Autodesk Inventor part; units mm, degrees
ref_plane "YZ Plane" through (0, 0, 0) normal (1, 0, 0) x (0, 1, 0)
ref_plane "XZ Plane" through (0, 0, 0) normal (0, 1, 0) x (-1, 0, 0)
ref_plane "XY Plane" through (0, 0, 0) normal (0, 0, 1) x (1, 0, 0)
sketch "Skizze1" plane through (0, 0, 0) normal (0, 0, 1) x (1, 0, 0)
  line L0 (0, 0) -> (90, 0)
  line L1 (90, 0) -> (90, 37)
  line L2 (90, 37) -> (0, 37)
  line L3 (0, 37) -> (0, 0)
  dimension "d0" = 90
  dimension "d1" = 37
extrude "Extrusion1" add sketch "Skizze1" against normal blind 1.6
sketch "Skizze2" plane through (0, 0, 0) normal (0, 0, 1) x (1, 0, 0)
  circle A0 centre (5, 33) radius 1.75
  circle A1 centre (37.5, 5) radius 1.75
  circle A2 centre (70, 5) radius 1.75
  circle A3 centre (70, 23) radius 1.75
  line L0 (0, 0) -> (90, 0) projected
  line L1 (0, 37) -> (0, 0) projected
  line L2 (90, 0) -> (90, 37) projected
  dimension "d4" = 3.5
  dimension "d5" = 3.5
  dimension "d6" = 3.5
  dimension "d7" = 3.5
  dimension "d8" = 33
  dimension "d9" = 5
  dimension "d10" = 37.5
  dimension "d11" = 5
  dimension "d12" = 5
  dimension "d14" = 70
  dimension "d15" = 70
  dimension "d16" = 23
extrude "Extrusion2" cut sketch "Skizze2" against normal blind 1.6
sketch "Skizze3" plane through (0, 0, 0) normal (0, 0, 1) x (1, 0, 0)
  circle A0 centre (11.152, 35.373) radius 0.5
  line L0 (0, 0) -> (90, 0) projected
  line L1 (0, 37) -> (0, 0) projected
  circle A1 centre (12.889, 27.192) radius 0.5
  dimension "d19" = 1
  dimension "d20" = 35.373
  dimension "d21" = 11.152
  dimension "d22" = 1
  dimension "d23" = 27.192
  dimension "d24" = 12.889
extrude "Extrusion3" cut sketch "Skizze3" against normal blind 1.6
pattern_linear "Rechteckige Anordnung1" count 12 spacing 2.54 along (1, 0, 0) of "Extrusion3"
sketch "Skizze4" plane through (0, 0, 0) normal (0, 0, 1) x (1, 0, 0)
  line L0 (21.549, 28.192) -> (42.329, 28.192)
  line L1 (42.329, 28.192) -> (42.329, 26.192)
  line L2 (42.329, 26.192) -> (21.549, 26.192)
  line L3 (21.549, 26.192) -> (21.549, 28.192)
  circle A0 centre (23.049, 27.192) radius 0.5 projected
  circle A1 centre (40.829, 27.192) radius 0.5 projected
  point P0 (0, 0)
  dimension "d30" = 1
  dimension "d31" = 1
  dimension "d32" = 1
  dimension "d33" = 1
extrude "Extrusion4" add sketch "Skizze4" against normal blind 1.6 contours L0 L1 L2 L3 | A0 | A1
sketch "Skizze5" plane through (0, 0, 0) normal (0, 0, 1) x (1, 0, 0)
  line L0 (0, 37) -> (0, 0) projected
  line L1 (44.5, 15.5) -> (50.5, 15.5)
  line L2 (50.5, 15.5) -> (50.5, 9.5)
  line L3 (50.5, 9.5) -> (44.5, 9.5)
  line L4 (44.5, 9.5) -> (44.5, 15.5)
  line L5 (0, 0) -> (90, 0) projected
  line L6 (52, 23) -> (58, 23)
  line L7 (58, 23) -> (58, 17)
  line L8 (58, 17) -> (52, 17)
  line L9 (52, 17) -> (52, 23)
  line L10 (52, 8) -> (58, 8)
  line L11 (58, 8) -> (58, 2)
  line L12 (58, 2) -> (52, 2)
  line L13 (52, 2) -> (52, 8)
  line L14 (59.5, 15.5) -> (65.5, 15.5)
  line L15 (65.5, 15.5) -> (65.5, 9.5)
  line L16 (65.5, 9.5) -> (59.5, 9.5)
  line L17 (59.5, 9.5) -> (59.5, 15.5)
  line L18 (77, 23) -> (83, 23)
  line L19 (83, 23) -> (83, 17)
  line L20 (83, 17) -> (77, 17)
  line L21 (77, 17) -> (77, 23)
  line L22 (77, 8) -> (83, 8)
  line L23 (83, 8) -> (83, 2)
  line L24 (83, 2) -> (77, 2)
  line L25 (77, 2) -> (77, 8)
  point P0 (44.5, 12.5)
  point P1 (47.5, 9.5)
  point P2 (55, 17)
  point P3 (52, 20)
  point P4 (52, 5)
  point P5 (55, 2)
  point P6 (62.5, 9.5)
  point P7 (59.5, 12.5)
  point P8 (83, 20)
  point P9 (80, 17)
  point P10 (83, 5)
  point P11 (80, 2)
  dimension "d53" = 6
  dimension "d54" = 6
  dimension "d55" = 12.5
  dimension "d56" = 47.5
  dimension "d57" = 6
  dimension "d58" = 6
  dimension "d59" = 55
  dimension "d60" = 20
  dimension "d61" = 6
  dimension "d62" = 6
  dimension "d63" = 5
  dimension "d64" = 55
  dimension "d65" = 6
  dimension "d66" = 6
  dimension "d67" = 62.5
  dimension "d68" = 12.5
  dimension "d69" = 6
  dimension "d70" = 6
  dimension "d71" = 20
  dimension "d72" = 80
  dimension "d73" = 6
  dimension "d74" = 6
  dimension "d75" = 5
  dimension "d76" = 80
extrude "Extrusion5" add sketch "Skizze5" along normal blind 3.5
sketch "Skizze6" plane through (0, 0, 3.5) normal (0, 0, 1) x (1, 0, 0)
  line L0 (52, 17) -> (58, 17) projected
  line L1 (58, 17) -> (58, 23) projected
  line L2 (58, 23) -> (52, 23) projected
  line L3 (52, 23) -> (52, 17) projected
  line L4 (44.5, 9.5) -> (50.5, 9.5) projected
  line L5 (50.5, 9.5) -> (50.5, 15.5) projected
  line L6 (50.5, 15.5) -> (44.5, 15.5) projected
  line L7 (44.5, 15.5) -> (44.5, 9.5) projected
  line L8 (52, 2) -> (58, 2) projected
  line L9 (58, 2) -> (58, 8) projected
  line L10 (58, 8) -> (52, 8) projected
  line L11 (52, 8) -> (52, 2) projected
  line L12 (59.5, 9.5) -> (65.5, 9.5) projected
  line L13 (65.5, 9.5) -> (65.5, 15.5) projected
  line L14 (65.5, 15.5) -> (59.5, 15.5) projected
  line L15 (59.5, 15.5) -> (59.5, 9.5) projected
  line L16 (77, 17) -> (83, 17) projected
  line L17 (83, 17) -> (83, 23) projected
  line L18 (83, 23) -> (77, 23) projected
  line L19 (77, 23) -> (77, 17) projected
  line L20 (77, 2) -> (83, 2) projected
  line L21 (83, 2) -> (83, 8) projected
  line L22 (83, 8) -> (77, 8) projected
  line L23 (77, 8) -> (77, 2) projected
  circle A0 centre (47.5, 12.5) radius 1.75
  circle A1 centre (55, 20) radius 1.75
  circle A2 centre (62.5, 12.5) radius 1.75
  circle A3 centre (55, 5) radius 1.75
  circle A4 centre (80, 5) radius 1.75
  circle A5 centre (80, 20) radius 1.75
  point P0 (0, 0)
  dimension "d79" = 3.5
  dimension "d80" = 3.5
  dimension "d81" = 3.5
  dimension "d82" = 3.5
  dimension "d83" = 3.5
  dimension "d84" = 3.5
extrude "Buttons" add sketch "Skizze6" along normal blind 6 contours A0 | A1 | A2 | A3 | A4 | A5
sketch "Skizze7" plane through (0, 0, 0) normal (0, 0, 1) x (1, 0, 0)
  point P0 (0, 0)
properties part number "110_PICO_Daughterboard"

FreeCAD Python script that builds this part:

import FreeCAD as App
import Part
import Sketcher
from FreeCAD import Vector
Q = App.Units.Quantity

doc = App.newDocument("Part")
body = doc.addObject("PartDesign::Body", "Body")

sketch1 = doc.addObject("Sketcher::SketchObject", "Sketch")
body.addObject(sketch1)
sketch1.AttachmentSupport = (doc.XY_Plane, [""])
sketch1.MapMode = "FlatFace"
sketch1.addGeometry(Part.LineSegment(Vector(0, 37, 0), Vector(0, 0, 0)), False)
sketch1.addGeometry(Part.LineSegment(Vector(0, 0, 0), Vector(90, 0, 0)), False)
sketch1.addGeometry(Part.LineSegment(Vector(90, 0, 0), Vector(90, 37, 0)), False)
sketch1.addGeometry(Part.LineSegment(Vector(90, 37, 0), Vector(0, 37, 0)), False)
sketch1.addConstraint(Sketcher.Constraint("Coincident", 0, 2, 1, 1))
sketch1.addConstraint(Sketcher.Constraint("Coincident", 1, 2, 2, 1))
sketch1.addConstraint(Sketcher.Constraint("Coincident", 2, 2, 3, 1))
sketch1.addConstraint(Sketcher.Constraint("Coincident", 3, 2, 0, 1))
sketch1.addConstraint(Sketcher.Constraint("Vertical", 0))
sketch1.addConstraint(Sketcher.Constraint("Horizontal", 1))
sketch1.addConstraint(Sketcher.Constraint("Vertical", 2))
sketch1.addConstraint(Sketcher.Constraint("Horizontal", 3))
sketch1.addConstraint(Sketcher.Constraint("Coincident", 0, 2, -1, 1))
sketch1.addConstraint(Sketcher.Constraint("DistanceX", 1, 1, 1, 2, Q("90 mm")))
sketch1.addConstraint(Sketcher.Constraint("DistanceY", 0, 2, 0, 1, Q("37 mm")))
pad1 = doc.addObject("PartDesign::Pad", "Pad")
body.addObject(pad1)
pad1.Profile = sketch1
pad1.Length = 1.6
pad1.Reversed = True

sketch2 = doc.addObject("Sketcher::SketchObject", "Sketch001")
body.addObject(sketch2)
sketch2.AttachmentSupport = (doc.XY_Plane, [""])
sketch2.MapMode = "FlatFace"
sketch2.addGeometry(Part.Circle(Vector(5, 33, 0), Vector(0, 0, 1), 1.75), False)
sketch2.addGeometry(Part.Circle(Vector(37.5, 5, 0), Vector(0, 0, 1), 1.75), False)
sketch2.addGeometry(Part.Circle(Vector(70, 5, 0), Vector(0, 0, 1), 1.75), False)
sketch2.addGeometry(Part.Circle(Vector(70, 23, 0), Vector(0, 0, 1), 1.75), False)
sketch2.addConstraint(Sketcher.Constraint("Equal", 0, 1))
sketch2.addConstraint(Sketcher.Constraint("Equal", 1, 2))
sketch2.addConstraint(Sketcher.Constraint("Equal", 2, 3))
sketch2.addConstraint(Sketcher.Constraint("Horizontal", 1, 3, 2, 3))
sketch2.addConstraint(Sketcher.Constraint("Vertical", 2, 3, 3, 3))
sketch2.addConstraint(Sketcher.Constraint("Diameter", 0, Q("3.5 mm")))
sketch2.addConstraint(Sketcher.Constraint("DistanceX", -1, 1, 0, 3, Q("5 mm")))
sketch2.addConstraint(Sketcher.Constraint("DistanceY", -1, 1, 0, 3, Q("33 mm")))
sketch2.addConstraint(Sketcher.Constraint("DistanceY", -1, 1, 1, 3, Q("5 mm")))
sketch2.addConstraint(Sketcher.Constraint("DistanceX", -1, 1, 2, 3, Q("70 mm")))
sketch2.addConstraint(Sketcher.Constraint("DistanceY", -1, 1, 3, 3, Q("23 mm")))
sketch2.addConstraint(Sketcher.Constraint("DistanceX", -1, 1, 1, 3, Q("37.5 mm")))
pocket1 = doc.addObject("PartDesign::Pocket", "Pocket")
body.addObject(pocket1)
pocket1.Profile = sketch2
pocket1.Length = 1.6

sketch3 = doc.addObject("Sketcher::SketchObject", "Sketch002")
body.addObject(sketch3)
sketch3.AttachmentSupport = (doc.XY_Plane, [""])
sketch3.MapMode = "FlatFace"
sketch3.addGeometry(Part.Circle(Vector(11.152, 35.373, 0), Vector(0, 0, 1), 0.5), False)
sketch3.addGeometry(Part.Circle(Vector(12.889, 27.192, 0), Vector(0, 0, 1), 0.5), False)
sketch3.addConstraint(Sketcher.Constraint("Equal", 0, 1))
sketch3.addConstraint(Sketcher.Constraint("Diameter", 0, Q("1 mm")))
sketch3.addConstraint(Sketcher.Constraint("DistanceX", -1, 1, 0, 3, Q("11.152 mm")))
sketch3.addConstraint(Sketcher.Constraint("DistanceY", -1, 1, 0, 3, Q("35.373 mm")))
sketch3.addConstraint(Sketcher.Constraint("DistanceX", -1, 1, 1, 3, Q("12.889 mm")))
sketch3.addConstraint(Sketcher.Constraint("DistanceY", -1, 1, 1, 3, Q("27.192 mm")))
pocket2 = doc.addObject("PartDesign::Pocket", "Pocket001")
body.addObject(pocket2)
pocket2.Profile = sketch3
pocket2.Length = 1.6
doc.recompute()

linearpattern = doc.addObject("PartDesign::LinearPattern", "LinearPattern")
body.addObject(linearpattern)
linearpattern.Originals = [pocket2]
linearpattern.Direction = (doc.X_Axis, [""])
linearpattern.Mode = "offset"
linearpattern.Offset = 2.54
linearpattern.Occurrences = 12
body.Tip = linearpattern

sketch4 = doc.addObject("Sketcher::SketchObject", "Sketch003")
body.addObject(sketch4)
sketch4.AttachmentSupport = (doc.XY_Plane, [""])
sketch4.MapMode = "FlatFace"
sketch4.addGeometry(Part.LineSegment(Vector(42.329, 28.192, 0), Vector(21.549, 28.192, 0)), False)
sketch4.addGeometry(Part.LineSegment(Vector(21.549, 28.192, 0), Vector(21.549, 26.192, 0)), False)
sketch4.addGeometry(Part.LineSegment(Vector(21.549, 26.192, 0), Vector(42.329, 26.192, 0)), False)
sketch4.addGeometry(Part.LineSegment(Vector(42.329, 26.192, 0), Vector(42.329, 28.192, 0)), False)
sketch4.addConstraint(Sketcher.Constraint("Coincident", 0, 2, 1, 1))
sketch4.addConstraint(Sketcher.Constraint("Coincident", 1, 2, 2, 1))
sketch4.addConstraint(Sketcher.Constraint("Coincident", 2, 2, 3, 1))
sketch4.addConstraint(Sketcher.Constraint("Coincident", 3, 2, 0, 1))
sketch4.addConstraint(Sketcher.Constraint("Horizontal", 0))
sketch4.addConstraint(Sketcher.Constraint("Vertical", 1))
sketch4.addConstraint(Sketcher.Constraint("Horizontal", 2))
sketch4.addConstraint(Sketcher.Constraint("Vertical", 3))
sketch4.addConstraint(Sketcher.Constraint("DistanceY", 1, 2, 1, 1, Q("2 mm")))
sketch4.addConstraint(Sketcher.Constraint("DistanceX", 0, 2, 0, 1, Q("20.78 mm")))
sketch4.addConstraint(Sketcher.Constraint("DistanceX", -1, 1, 0, 2, Q("21.549 mm")))
sketch4.addConstraint(Sketcher.Constraint("DistanceY", -1, 1, 0, 2, Q("28.192 mm")))
pad2 = doc.addObject("PartDesign::Pad", "Pad001")
body.addObject(pad2)
pad2.Profile = sketch4
pad2.Length = 1.6
pad2.Reversed = True

sketch5 = doc.addObject("Sketcher::SketchObject", "Sketch004")
body.addObject(sketch5)
sketch5.AttachmentSupport = (doc.XY_Plane, [""])
sketch5.MapMode = "FlatFace"
sketch5.addGeometry(Part.LineSegment(Vector(50.5, 15.5, 0), Vector(44.5, 15.5, 0)), False)
sketch5.addGeometry(Part.LineSegment(Vector(44.5, 15.5, 0), Vector(44.5, 9.5, 0)), False)
sketch5.addGeometry(Part.LineSegment(Vector(44.5, 9.5, 0), Vector(50.5, 9.5, 0)), False)
sketch5.addGeometry(Part.LineSegment(Vector(50.5, 9.5, 0), Vector(50.5, 15.5, 0)), False)
sketch5.addGeometry(Part.LineSegment(Vector(58, 23, 0), Vector(52, 23, 0)), False)
sketch5.addGeometry(Part.LineSegment(Vector(52, 23, 0), Vector(52, 17, 0)), False)
sketch5.addGeometry(Part.LineSegment(Vector(52, 17, 0), Vector(58, 17, 0)), False)
sketch5.addGeometry(Part.LineSegment(Vector(58, 17, 0), Vector(58, 23, 0)), False)
sketch5.addGeometry(Part.LineSegment(Vector(58, 8, 0), Vector(52, 8, 0)), False)
sketch5.addGeometry(Part.LineSegment(Vector(52, 8, 0), Vector(52, 2, 0)), False)
sketch5.addGeometry(Part.LineSegment(Vector(52, 2, 0), Vector(58, 2, 0)), False)
sketch5.addGeometry(Part.LineSegment(Vector(58, 2, 0), Vector(58, 8, 0)), False)
sketch5.addGeometry(Part.LineSegment(Vector(65.5, 15.5, 0), Vector(59.5, 15.5, 0)), False)
sketch5.addGeometry(Part.LineSegment(Vector(59.5, 15.5, 0), Vector(59.5, 9.5, 0)), False)
sketch5.addGeometry(Part.LineSegment(Vector(59.5, 9.5, 0), Vector(65.5, 9.5, 0)), False)
sketch5.addGeometry(Part.LineSegment(Vector(65.5, 9.5, 0), Vector(65.5, 15.5, 0)), False)
sketch5.addGeometry(Part.LineSegment(Vector(83, 23, 0), Vector(77, 23, 0)), False)
sketch5.addGeometry(Part.LineSegment(Vector(77, 23, 0), Vector(77, 17, 0)), False)
sketch5.addGeometry(Part.LineSegment(Vector(77, 17, 0), Vector(83, 17, 0)), False)
sketch5.addGeometry(Part.LineSegment(Vector(83, 17, 0), Vector(83, 23, 0)), False)
sketch5.addGeometry(Part.LineSegment(Vector(83, 8, 0), Vector(77, 8, 0)), False)
sketch5.addGeometry(Part.LineSegment(Vector(77, 8, 0), Vector(77, 2, 0)), False)
sketch5.addGeometry(Part.LineSegment(Vector(77, 2, 0), Vector(83, 2, 0)), False)
sketch5.addGeometry(Part.LineSegment(Vector(83, 2, 0), Vector(83, 8, 0)), False)
sketch5.addConstraint(Sketcher.Constraint("Coincident", 0, 2, 1, 1))
sketch5.addConstraint(Sketcher.Constraint("Coincident", 1, 2, 2, 1))
sketch5.addConstraint(Sketcher.Constraint("Coincident", 2, 2, 3, 1))
sketch5.addConstraint(Sketcher.Constraint("Coincident", 3, 2, 0, 1))
sketch5.addConstraint(Sketcher.Constraint("Coincident", 4, 2, 5, 1))
sketch5.addConstraint(Sketcher.Constraint("Coincident", 5, 2, 6, 1))
sketch5.addConstraint(Sketcher.Constraint("Coincident", 6, 2, 7, 1))
sketch5.addConstraint(Sketcher.Constraint("Coincident", 7, 2, 4, 1))
sketch5.addConstraint(Sketcher.Constraint("Coincident", 8, 2, 9, 1))
sketch5.addConstraint(Sketcher.Constraint("Coincident", 9, 2, 10, 1))
sketch5.addConstraint(Sketcher.Constraint("Coincident", 10, 2, 11, 1))
sketch5.addConstraint(Sketcher.Constraint("Coincident", 11, 2, 8, 1))
sketch5.addConstraint(Sketcher.Constraint("Coincident", 12, 2, 13, 1))
sketch5.addConstraint(Sketcher.Constraint("Coincident", 13, 2, 14, 1))
sketch5.addConstraint(Sketcher.Constraint("Coincident", 14, 2, 15, 1))
sketch5.addConstraint(Sketcher.Constraint("Coincident", 15, 2, 12, 1))
sketch5.addConstraint(Sketcher.Constraint("Coincident", 16, 2, 17, 1))
sketch5.addConstraint(Sketcher.Constraint("Coincident", 17, 2, 18, 1))
sketch5.addConstraint(Sketcher.Constraint("Coincident", 18, 2, 19, 1))
sketch5.addConstraint(Sketcher.Constraint("Coincident", 19, 2, 16, 1))
sketch5.addConstraint(Sketcher.Constraint("Coincident", 20, 2, 21, 1))
sketch5.addConstraint(Sketcher.Constraint("Coincident", 21, 2, 22, 1))
sketch5.addConstraint(Sketcher.Constraint("Coincident", 22, 2, 23, 1))
sketch5.addConstraint(Sketcher.Constraint("Coincident", 23, 2, 20, 1))
sketch5.addConstraint(Sketcher.Constraint("Horizontal", 0))
sketch5.addConstraint(Sketcher.Constraint("Vertical", 1))
sketch5.addConstraint(Sketcher.Constraint("Horizontal", 2))
sketch5.addConstraint(Sketcher.Constraint("Vertical", 3))
sketch5.addConstraint(Sketcher.Constraint("Horizontal", 4))
sketch5.addConstraint(Sketcher.Constraint("Vertical", 5))
sketch5.addConstraint(Sketcher.Constraint("Horizontal", 6))
sketch5.addConstraint(Sketcher.Constraint("Vertical", 7))
sketch5.addConstraint(Sketcher.Constraint("Horizontal", 8))
sketch5.addConstraint(Sketcher.Constraint("Vertical", 9))
sketch5.addConstraint(Sketcher.Constraint("Horizontal", 10))
sketch5.addConstraint(Sketcher.Constraint("Vertical", 11))
sketch5.addConstraint(Sketcher.Constraint("Horizontal", 12))
sketch5.addConstraint(Sketcher.Constraint("Vertical", 13))
sketch5.addConstraint(Sketcher.Constraint("Horizontal", 14))
sketch5.addConstraint(Sketcher.Constraint("Vertical", 15))
sketch5.addConstraint(Sketcher.Constraint("Horizontal", 16))
sketch5.addConstraint(Sketcher.Constraint("Vertical", 17))
sketch5.addConstraint(Sketcher.Constraint("Horizontal", 18))
sketch5.addConstraint(Sketcher.Constraint("Vertical", 19))
sketch5.addConstraint(Sketcher.Constraint("Horizontal", 20))
sketch5.addConstraint(Sketcher.Constraint("Vertical", 21))
sketch5.addConstraint(Sketcher.Constraint("Horizontal", 22))
sketch5.addConstraint(Sketcher.Constraint("Vertical", 23))
sketch5.addConstraint(Sketcher.Constraint("Horizontal", 3, 2, 12, 2))
sketch5.addConstraint(Sketcher.Constraint("Horizontal", 2, 2, 13, 2))
sketch5.addConstraint(Sketcher.Constraint("Horizontal", 7, 2, 16, 2))
sketch5.addConstraint(Sketcher.Constraint("Horizontal", 6, 2, 17, 2))
sketch5.addConstraint(Sketcher.Constraint("Horizontal", 11, 2, 20, 2))
sketch5.addConstraint(Sketcher.Constraint("Horizontal", 10, 2, 21, 2))
sketch5.addConstraint(Sketcher.Constraint("Vertical", 5, 2, 8, 2))
sketch5.addConstraint(Sketcher.Constraint("Vertical", 7, 2, 10, 2))
sketch5.addConstraint(Sketcher.Constraint("Vertical", 17, 2, 20, 2))
sketch5.addConstraint(Sketcher.Constraint("Vertical", 19, 2, 22, 2))
sketch5.addConstraint(Sketcher.Constraint("Equal", 2, 4))
sketch5.addConstraint(Sketcher.Constraint("Equal", 10, 12))
sketch5.addConstraint(Sketcher.Constraint("Equal", 14, 16))
sketch5.addConstraint(Sketcher.Constraint("Equal", 22, 1))
sketch5.addConstraint(Sketcher.Constraint("Equal", 3, 5))
sketch5.addConstraint(Sketcher.Constraint("Equal", 7, 9))
sketch5.addConstraint(Sketcher.Constraint("DistanceX", 0, 2, 0, 1, Q("6 mm")))
sketch5.addConstraint(Sketcher.Constraint("DistanceX", -1, 1, 4, 2, Q("52 mm")))
sketch5.addConstraint(Sketcher.Constraint("DistanceY", -1, 1, 4, 2, Q("23 mm")))
sketch5.addConstraint(Sketcher.Constraint("DistanceY", -1, 1, 8, 2, Q("8 mm")))
sketch5.addConstraint(Sketcher.Constraint("DistanceX", -1, 1, 16, 2, Q("77 mm")))
sketch5.addConstraint(Sketcher.Constraint("DistanceX", 3, 2, 12, 2, Q("9 mm")))
sketch5.addConstraint(Sketcher.Constraint("DistanceX", -1, 1, 0, 2, Q("44.5 mm")))
sketch5.addConstraint(Sketcher.Constraint("DistanceY", -1, 1, 0, 2, Q("15.5 mm")))
pad3 = doc.addObject("PartDesign::Pad", "Pad002")
body.addObject(pad3)
pad3.Profile = sketch5
pad3.Length = 3.5

sketch6 = doc.addObject("Sketcher::SketchObject", "Sketch005")
body.addObject(sketch6)
sketch6.AttachmentSupport = (doc.XY_Plane, [""])
sketch6.MapMode = "FlatFace"
sketch6.AttachmentOffset = App.Placement(Vector(0, 0, 3.5), App.Rotation())
sketch6.addGeometry(Part.Circle(Vector(47.5, 12.5, 0), Vector(0, 0, 1), 1.75), False)
sketch6.addGeometry(Part.Circle(Vector(55, 20, 0), Vector(0, 0, 1), 1.75), False)
sketch6.addGeometry(Part.Circle(Vector(62.5, 12.5, 0), Vector(0, 0, 1), 1.75), False)
sketch6.addGeometry(Part.Circle(Vector(55, 5, 0), Vector(0, 0, 1), 1.75), False)
sketch6.addGeometry(Part.Circle(Vector(80, 5, 0), Vector(0, 0, 1), 1.75), False)
sketch6.addGeometry(Part.Circle(Vector(80, 20, 0), Vector(0, 0, 1), 1.75), False)
sketch6.addConstraint(Sketcher.Constraint("Equal", 0, 1))
sketch6.addConstraint(Sketcher.Constraint("Equal", 1, 2))
sketch6.addConstraint(Sketcher.Constraint("Equal", 2, 3))
sketch6.addConstraint(Sketcher.Constraint("Equal", 3, 4))
sketch6.addConstraint(Sketcher.Constraint("Equal", 4, 5))
sketch6.addConstraint(Sketcher.Constraint("Horizontal", 0, 3, 2, 3))
sketch6.addConstraint(Sketcher.Constraint("Horizontal", 3, 3, 4, 3))
sketch6.addConstraint(Sketcher.Constraint("Horizontal", 1, 3, 5, 3))
sketch6.addConstraint(Sketcher.Constraint("Vertical", 1, 3, 3, 3))
sketch6.addConstraint(Sketcher.Constraint("Vertical", 4, 3, 5, 3))
sketch6.addConstraint(Sketcher.Constraint("Diameter", 0, Q("3.5 mm")))
sketch6.addConstraint(Sketcher.Constraint("DistanceX", -1, 1, 1, 3, Q("55 mm")))
sketch6.addConstraint(Sketcher.Constraint("DistanceY", -1, 1, 1, 3, Q("20 mm")))
sketch6.addConstraint(Sketcher.Constraint("DistanceY", -1, 1, 3, 3, Q("5 mm")))
sketch6.addConstraint(Sketcher.Constraint("DistanceX", -1, 1, 4, 3, Q("80 mm")))
sketch6.addConstraint(Sketcher.Constraint("DistanceX", 0, 3, 2, 3, Q("15 mm")))
sketch6.addConstraint(Sketcher.Constraint("DistanceX", -1, 1, 0, 3, Q("47.5 mm")))
sketch6.addConstraint(Sketcher.Constraint("DistanceY", -1, 1, 0, 3, Q("12.5 mm")))
pad4 = doc.addObject("PartDesign::Pad", "Pad003")
body.addObject(pad4)
pad4.Profile = sketch6
pad4.Length = 6

doc.recompute()
